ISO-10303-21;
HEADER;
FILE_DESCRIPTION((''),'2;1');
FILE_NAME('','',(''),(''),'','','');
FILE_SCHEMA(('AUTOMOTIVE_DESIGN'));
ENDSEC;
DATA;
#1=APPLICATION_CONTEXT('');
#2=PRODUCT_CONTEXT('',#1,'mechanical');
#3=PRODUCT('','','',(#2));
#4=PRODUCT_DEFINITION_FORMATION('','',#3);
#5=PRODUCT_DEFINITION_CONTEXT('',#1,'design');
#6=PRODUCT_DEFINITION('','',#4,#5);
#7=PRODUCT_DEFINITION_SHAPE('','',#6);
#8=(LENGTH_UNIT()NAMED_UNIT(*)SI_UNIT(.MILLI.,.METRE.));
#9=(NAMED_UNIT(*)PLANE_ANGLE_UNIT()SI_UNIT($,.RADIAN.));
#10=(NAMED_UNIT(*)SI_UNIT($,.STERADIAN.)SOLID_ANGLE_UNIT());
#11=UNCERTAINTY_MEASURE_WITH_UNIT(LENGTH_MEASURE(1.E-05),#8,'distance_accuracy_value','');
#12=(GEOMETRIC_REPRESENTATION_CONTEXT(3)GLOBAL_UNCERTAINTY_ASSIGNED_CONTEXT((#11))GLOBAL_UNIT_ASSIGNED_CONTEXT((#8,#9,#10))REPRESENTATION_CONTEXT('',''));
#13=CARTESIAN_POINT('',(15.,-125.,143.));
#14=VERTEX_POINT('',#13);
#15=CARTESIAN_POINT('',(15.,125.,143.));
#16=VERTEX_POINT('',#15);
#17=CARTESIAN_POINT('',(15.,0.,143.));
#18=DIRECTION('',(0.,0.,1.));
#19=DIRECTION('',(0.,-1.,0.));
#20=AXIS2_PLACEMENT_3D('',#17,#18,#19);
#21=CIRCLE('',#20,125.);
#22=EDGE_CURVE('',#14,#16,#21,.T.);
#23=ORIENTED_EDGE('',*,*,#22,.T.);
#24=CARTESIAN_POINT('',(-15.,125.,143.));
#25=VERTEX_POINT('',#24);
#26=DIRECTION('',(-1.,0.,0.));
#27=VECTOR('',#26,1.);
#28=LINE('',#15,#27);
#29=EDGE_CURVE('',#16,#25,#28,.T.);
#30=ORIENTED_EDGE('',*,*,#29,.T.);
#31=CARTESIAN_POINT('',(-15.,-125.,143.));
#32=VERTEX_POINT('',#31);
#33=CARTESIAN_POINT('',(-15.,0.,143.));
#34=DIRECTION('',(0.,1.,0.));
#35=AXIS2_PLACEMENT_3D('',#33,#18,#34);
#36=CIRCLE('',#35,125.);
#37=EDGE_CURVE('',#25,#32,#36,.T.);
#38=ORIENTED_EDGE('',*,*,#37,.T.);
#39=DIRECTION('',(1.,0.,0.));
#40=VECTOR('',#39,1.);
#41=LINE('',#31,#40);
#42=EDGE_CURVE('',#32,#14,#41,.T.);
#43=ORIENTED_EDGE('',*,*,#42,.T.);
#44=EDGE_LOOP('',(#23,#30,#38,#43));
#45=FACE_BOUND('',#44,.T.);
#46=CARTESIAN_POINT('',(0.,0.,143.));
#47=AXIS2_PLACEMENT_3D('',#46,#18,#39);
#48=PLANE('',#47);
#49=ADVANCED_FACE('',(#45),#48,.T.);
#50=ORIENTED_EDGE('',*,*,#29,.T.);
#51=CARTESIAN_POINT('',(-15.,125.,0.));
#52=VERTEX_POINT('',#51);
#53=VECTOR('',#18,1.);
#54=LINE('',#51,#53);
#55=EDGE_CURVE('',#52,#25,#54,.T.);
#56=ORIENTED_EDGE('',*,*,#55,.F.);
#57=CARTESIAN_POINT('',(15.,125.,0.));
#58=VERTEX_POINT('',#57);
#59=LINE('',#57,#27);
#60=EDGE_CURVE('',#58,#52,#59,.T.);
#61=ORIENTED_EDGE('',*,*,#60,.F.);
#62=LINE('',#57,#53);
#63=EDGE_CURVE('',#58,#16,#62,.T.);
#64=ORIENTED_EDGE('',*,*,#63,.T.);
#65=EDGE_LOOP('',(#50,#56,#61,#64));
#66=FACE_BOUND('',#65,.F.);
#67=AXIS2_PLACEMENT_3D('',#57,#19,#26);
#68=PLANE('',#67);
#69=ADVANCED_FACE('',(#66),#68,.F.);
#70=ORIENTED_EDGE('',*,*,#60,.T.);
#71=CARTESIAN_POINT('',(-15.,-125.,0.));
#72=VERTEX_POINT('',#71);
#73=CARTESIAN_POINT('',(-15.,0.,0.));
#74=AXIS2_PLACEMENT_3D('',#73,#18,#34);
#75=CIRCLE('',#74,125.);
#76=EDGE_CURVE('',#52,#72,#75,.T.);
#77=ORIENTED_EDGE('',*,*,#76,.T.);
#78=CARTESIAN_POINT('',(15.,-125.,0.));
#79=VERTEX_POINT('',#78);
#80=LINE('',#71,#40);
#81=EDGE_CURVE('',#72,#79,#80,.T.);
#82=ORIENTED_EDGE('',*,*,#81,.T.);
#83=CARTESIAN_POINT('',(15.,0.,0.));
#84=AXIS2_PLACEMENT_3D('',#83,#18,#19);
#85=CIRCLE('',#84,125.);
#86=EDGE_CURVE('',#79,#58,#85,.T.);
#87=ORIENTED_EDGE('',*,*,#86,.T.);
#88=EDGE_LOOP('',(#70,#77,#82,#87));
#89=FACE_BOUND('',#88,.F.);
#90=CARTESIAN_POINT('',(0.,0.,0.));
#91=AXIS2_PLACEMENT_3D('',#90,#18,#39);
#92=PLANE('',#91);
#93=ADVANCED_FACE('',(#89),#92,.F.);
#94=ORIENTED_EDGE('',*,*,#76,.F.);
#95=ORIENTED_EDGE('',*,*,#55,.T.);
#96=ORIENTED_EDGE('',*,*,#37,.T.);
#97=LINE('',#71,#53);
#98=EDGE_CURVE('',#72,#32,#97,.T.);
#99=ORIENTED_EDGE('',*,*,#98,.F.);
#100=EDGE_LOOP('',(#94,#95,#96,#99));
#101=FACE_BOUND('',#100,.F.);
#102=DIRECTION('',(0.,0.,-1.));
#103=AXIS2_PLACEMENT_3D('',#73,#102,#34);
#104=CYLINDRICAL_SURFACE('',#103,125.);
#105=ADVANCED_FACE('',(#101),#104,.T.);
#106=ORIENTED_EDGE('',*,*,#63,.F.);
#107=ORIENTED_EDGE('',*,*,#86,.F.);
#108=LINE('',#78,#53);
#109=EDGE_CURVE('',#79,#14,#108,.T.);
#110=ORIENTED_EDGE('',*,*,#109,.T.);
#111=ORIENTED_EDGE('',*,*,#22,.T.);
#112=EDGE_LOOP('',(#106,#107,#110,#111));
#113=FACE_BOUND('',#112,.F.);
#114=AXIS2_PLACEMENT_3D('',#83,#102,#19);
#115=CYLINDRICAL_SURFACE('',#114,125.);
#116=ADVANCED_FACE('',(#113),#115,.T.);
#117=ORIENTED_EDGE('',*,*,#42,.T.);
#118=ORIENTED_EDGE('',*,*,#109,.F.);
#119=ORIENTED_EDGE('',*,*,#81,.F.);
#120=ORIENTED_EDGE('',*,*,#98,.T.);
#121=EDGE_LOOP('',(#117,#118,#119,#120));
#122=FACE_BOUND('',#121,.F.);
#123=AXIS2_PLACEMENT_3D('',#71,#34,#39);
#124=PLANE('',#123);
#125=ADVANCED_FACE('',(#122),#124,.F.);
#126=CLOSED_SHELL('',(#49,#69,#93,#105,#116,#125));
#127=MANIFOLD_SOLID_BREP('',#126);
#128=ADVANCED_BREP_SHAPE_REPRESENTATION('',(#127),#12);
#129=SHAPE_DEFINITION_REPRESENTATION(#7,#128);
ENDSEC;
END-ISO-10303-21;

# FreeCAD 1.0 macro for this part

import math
import FreeCAD as App
import Part
import Sketcher

V = App.Vector
Q = App.Units.Quantity

doc = App.newDocument("Part")
body = doc.addObject("PartDesign::Body", "Body")

sketch1 = body.newObject("Sketcher::SketchObject", "Sketch")
sketch1.AttachmentSupport = (doc.getObject("XY_Plane"), [""])
sketch1.MapMode = "FlatFace"
sketch1.addGeometry([
    Part.ArcOfCircle(Part.Circle(V(15, 0, 0), V(0, 0, 1), 125), math.radians(-90), math.radians(90)),
    Part.LineSegment(V(15, 125, 0), V(-15, 125, 0)),
    Part.ArcOfCircle(Part.Circle(V(-15, 0, 0), V(0, 0, 1), 125), math.radians(90), math.radians(270)),
    Part.LineSegment(V(-15, -125, 0), V(15, -125, 0)),
], False)
sketch1.addConstraint([
    Sketcher.Constraint("Tangent", 0, 2, 1, 1),
    Sketcher.Constraint("Tangent", 1, 2, 2, 1),
    Sketcher.Constraint("Tangent", 2, 2, 3, 1),
    Sketcher.Constraint("Tangent", 3, 2, 0, 1),
    Sketcher.Constraint("Horizontal", 1),
    Sketcher.Constraint("Horizontal", 3),
    Sketcher.Constraint("Symmetric", 0, 3, 2, 3, -1, 1),
    Sketcher.Constraint("Radius", 0, Q("125 mm")),
    Sketcher.Constraint("DistanceX", 1, 2, 1, 1, Q("30 mm")),
])
pad1 = body.newObject("PartDesign::Pad", "Pad")
pad1.Profile = sketch1
pad1.Length = 143

doc.recompute()
